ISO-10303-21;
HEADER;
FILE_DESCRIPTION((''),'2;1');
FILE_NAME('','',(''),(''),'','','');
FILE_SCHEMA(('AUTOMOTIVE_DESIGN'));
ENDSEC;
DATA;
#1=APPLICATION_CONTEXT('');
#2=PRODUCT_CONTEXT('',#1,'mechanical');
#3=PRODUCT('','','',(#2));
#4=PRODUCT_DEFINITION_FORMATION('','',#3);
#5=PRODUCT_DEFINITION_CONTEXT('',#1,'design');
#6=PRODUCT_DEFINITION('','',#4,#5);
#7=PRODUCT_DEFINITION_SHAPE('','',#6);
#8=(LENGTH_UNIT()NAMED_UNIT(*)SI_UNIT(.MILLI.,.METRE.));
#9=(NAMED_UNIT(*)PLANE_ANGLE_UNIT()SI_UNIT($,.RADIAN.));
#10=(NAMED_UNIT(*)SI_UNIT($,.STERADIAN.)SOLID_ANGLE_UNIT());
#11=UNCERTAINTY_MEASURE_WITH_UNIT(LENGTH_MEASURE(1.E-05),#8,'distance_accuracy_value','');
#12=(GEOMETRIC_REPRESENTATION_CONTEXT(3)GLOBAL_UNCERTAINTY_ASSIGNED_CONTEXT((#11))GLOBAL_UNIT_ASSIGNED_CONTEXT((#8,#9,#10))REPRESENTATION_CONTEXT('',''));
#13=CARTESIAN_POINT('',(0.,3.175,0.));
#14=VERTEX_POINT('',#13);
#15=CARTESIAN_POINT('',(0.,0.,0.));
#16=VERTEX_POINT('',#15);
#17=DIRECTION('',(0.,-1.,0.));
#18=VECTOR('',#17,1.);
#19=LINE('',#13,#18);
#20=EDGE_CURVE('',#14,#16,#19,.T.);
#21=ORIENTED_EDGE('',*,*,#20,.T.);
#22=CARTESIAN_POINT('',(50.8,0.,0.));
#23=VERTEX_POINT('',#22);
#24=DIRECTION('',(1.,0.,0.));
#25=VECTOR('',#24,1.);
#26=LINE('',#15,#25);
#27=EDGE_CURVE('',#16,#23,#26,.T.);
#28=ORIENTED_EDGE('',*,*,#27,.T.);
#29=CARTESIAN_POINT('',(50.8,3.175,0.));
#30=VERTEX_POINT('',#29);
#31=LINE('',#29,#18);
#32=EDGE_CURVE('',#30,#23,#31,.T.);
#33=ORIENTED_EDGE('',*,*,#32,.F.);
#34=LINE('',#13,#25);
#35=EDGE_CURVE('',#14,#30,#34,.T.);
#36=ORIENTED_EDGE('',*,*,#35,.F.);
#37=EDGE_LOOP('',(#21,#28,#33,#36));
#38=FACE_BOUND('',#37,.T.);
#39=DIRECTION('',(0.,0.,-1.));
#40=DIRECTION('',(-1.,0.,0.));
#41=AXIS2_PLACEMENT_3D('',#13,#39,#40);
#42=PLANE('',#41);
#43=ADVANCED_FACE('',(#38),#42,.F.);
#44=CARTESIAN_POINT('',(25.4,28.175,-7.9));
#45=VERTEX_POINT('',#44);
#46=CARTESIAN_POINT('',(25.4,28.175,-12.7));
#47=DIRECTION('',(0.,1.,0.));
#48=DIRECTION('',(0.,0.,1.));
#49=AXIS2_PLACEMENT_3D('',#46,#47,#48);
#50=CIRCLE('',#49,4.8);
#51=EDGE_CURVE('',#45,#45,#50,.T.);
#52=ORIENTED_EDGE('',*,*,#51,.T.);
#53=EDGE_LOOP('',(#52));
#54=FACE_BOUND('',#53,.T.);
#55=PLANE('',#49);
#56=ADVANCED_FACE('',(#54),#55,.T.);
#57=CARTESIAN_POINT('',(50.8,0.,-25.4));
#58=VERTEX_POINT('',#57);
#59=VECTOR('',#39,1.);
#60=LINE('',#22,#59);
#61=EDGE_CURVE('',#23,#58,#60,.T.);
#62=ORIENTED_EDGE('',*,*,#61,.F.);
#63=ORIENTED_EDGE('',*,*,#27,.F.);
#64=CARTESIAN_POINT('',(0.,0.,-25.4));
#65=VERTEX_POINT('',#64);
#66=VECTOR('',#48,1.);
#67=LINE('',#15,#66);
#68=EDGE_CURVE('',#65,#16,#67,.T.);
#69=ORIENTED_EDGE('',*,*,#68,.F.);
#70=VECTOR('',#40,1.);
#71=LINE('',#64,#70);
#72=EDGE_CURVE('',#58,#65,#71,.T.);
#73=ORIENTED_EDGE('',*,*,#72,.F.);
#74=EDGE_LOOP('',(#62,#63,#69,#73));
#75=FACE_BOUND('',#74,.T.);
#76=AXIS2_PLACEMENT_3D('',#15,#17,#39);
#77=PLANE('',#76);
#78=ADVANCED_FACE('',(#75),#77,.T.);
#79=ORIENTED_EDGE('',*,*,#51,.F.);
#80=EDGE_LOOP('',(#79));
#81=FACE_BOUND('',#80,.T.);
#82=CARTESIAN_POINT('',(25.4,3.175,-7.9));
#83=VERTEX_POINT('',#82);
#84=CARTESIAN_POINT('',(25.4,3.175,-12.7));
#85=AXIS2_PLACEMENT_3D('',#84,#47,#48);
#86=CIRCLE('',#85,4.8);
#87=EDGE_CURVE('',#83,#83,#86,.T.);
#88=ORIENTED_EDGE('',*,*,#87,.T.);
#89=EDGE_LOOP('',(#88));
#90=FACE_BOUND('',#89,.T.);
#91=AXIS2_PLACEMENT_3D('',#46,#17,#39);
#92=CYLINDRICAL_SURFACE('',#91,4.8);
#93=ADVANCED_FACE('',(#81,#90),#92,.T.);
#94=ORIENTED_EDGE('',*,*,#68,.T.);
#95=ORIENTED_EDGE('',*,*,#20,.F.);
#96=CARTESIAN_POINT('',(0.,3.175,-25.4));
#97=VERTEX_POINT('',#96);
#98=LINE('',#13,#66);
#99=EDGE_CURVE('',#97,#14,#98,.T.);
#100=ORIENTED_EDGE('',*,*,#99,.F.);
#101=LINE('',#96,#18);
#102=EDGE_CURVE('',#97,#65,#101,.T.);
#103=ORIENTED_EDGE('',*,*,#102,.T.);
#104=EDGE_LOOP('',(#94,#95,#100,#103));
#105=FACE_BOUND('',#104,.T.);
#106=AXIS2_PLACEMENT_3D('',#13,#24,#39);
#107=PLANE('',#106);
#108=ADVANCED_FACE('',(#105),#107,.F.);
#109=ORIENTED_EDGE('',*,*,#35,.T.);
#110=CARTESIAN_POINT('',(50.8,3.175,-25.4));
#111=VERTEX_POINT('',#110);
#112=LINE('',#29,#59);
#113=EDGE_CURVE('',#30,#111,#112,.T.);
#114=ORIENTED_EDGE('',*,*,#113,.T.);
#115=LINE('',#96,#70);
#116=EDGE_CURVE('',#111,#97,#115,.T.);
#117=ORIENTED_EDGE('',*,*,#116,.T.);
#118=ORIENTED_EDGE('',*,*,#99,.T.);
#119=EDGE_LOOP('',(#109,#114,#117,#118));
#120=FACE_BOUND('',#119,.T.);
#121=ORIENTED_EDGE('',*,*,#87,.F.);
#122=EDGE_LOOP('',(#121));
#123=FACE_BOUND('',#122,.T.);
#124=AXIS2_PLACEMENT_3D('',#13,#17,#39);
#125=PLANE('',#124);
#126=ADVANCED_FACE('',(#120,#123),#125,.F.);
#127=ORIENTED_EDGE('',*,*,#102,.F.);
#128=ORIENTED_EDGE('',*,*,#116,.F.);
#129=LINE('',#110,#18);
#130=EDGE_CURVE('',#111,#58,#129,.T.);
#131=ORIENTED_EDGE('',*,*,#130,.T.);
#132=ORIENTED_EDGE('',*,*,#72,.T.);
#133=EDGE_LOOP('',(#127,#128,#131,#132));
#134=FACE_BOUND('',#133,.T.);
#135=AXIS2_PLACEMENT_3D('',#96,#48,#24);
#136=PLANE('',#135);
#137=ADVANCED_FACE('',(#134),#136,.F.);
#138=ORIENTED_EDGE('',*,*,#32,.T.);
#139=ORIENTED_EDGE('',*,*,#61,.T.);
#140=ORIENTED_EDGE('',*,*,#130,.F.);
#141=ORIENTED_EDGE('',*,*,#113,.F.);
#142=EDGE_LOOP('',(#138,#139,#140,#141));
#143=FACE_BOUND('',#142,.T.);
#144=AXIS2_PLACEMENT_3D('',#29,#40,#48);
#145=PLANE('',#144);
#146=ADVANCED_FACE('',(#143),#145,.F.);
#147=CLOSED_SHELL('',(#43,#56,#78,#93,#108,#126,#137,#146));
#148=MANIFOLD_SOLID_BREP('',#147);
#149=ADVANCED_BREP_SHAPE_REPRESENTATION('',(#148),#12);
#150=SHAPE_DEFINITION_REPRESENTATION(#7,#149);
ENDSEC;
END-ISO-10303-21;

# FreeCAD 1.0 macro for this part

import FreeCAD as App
import Part
import Sketcher

V = App.Vector
Q = App.Units.Quantity


def add_polygon(sketch, points):
    """Adds a closed chain of lines whose ends are joined by coincident constraints."""
    first, n = sketch.GeometryCount, len(points)
    for a, b in zip(points, points[1:] + points[:1]):
        sketch.addGeometry(Part.LineSegment(App.Vector(*a, 0), App.Vector(*b, 0)), False)
    for i in range(n):
        sketch.addConstraint(Sketcher.Constraint("Coincident", first + i, 2, first + (i + 1) % n, 1))

doc = App.newDocument("Part")
body = doc.addObject("PartDesign::Body", "Body")

# Sketch on XZ plane
sketch1 = body.newObject("Sketcher::SketchObject", "Sketch")
sketch1.AttachmentSupport = (doc.getObject("XZ_Plane"), [""])
sketch1.MapMode = "FlatFace"
add_polygon(sketch1, [(0, -25), (0, 0), (51, 0), (51, -25)])  # lines 0-3
sketch1.addConstraint([
    Sketcher.Constraint("Vertical", 0),
    Sketcher.Constraint("Horizontal", 1),
    Sketcher.Constraint("Vertical", 2),
    Sketcher.Constraint("Horizontal", 3),
    Sketcher.Constraint("Coincident", 0, 2, -1, 1),
    Sketcher.Constraint("DistanceX", 1, 1, 1, 2, Q("2 in")),
    Sketcher.Constraint("DistanceY", 0, 1, 0, 2, Q("1 in")),
])
pad1 = body.newObject("PartDesign::Pad", "Pad")
pad1.Profile = sketch1
pad1.Length = Q("0.125 in")
pad1.Reversed = True

# Sketch on XZ plane
sketch2 = body.newObject("Sketcher::SketchObject", "Sketch001")
sketch2.AttachmentSupport = (doc.getObject("XZ_Plane"), [""])
sketch2.MapMode = "FlatFace"
sketch2.AttachmentOffset = App.Placement(V(0, 0, -0.125 * 25.4), App.Rotation())
sketch2.addGeometry(Part.Circle(V(25.4, -12.7, 0), V(0, 0, 1), 4.8), False)
sketch2.addConstraint([
    Sketcher.Constraint("DistanceX", -1, 1, 0, 3, Q("1 in")),
    Sketcher.Constraint("DistanceY", 0, 3, -1, 1, Q("0.5 in")),
    Sketcher.Constraint("Diameter", 0, 9.6),
])
pad2 = body.newObject("PartDesign::Pad", "Pad001")
pad2.Profile = sketch2
pad2.Length = 25
pad2.Reversed = True

doc.recompute()
